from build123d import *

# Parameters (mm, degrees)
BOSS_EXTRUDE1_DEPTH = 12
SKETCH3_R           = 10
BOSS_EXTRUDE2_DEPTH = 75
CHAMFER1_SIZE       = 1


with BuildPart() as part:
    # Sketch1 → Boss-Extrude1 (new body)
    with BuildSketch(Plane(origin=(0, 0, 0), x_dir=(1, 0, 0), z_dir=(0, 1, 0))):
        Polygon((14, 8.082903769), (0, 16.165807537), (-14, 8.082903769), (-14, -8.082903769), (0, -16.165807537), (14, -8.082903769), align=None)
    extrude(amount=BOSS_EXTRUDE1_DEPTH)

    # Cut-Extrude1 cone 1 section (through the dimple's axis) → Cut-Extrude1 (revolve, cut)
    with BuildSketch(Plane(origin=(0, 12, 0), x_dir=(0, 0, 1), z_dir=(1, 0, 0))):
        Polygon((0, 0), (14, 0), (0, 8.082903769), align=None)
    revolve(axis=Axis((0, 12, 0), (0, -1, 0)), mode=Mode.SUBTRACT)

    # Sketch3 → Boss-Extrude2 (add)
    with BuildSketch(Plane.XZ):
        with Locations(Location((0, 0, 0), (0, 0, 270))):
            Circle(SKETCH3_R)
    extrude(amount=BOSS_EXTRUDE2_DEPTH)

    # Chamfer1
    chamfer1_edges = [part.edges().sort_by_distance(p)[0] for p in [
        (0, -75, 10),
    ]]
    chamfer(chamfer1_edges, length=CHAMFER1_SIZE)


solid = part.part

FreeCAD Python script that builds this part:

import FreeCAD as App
import Part
import Sketcher
from FreeCAD import Vector
Q = App.Units.Quantity


def edges_at(feature, points):
    """Names of the edges that pass closest to the given points."""
    edges = feature.Shape.Edges
    near = lambda p: min(range(len(edges)), key=lambda i: edges[i].distToShape(Part.Vertex(*p))[0])
    return sorted({f"Edge{near(p) + 1}" for p in points})

doc = App.newDocument("Part")
body = doc.addObject("PartDesign::Body", "Body")

# Sketch on XZ plane
sketch1 = body.newObject("Sketcher::SketchObject", "Sketch")
sketch1.AttachmentSupport = (doc.getObject("XZ_Plane"), [""])
sketch1.MapMode = "FlatFace"
sketch1.addGeometry([
    Part.LineSegment(Vector(14, -8.082904, 0), Vector(0, -16.165808, 0)),  # 0
    Part.LineSegment(Vector(0, -16.165808, 0), Vector(-14, -8.082904, 0)),  # 1
    Part.LineSegment(Vector(-14, -8.082904, 0), Vector(-14, 8.082904, 0)),  # 2
    Part.LineSegment(Vector(-14, 8.082904, 0), Vector(0, 16.165808, 0)),  # 3
    Part.LineSegment(Vector(0, 16.165808, 0), Vector(14, 8.082904, 0)),  # 4
    Part.LineSegment(Vector(14, 8.082904, 0), Vector(14, -8.082904, 0)),  # 5
], False)
sketch1.addConstraint([
    Sketcher.Constraint("Coincident", 0, 2, 1, 1),
    Sketcher.Constraint("Coincident", 1, 2, 2, 1),
    Sketcher.Constraint("Coincident", 2, 2, 3, 1),
    Sketcher.Constraint("Coincident", 3, 2, 4, 1),
    Sketcher.Constraint("Coincident", 4, 2, 5, 1),
    Sketcher.Constraint("Coincident", 5, 2, 0, 1),
    Sketcher.Constraint("Vertical", 2),
    Sketcher.Constraint("Vertical", 5),
    Sketcher.Constraint("Symmetric", 0, 2, 3, 2, -1, 1),
    Sketcher.Constraint("Symmetric", 1, 2, 4, 2, -1, 1),
    Sketcher.Constraint("PointOnObject", 0, 2, -2),
    Sketcher.Constraint("Parallel", 0, 3),
    Sketcher.Constraint("Horizontal", 2, 2, 4, 2),
    Sketcher.Constraint("Angle", 0, Q("-150 deg")),
    Sketcher.Constraint("DistanceX", 1, 2, -1, 1, 14.0),
    Sketcher.Constraint("DistanceY", 2, 1, 2, 2, 16.165808),
])
pad1 = body.newObject("PartDesign::Pad", "Pad")
pad1.Profile = sketch1
pad1.Length = 12
pad1.Reversed = True

# Sketch on YZ plane
sketch2 = body.newObject("Sketcher::SketchObject", "Sketch001")
sketch2.AttachmentSupport = (doc.getObject("YZ_Plane"), [""])
sketch2.MapMode = "FlatFace"
sketch2.addGeometry([
    Part.LineSegment(Vector(12, 0, 0), Vector(12, 14, 0)),
    Part.LineSegment(Vector(12, 14, 0), Vector(3.917096, 0, 0)),
    Part.LineSegment(Vector(3.917096, 0, 0), Vector(12, 0, 0)),
], False)
sketch2.addConstraint([
    Sketcher.Constraint("Coincident", 0, 2, 1, 1),
    Sketcher.Constraint("Coincident", 1, 2, 2, 1),
    Sketcher.Constraint("Coincident", 2, 2, 0, 1),
    Sketcher.Constraint("Vertical", 0),
    Sketcher.Constraint("Horizontal", 2),
    Sketcher.Constraint("PointOnObject", 1, 2, -1),
    Sketcher.Constraint("DistanceY", 0, 1, 0, 2, 14.0),
    Sketcher.Constraint("Angle", 1, Q("-120 deg")),
    Sketcher.Constraint("DistanceX", -1, 1, 0, 2, 12.0),
])
groove = body.newObject("PartDesign::Groove", "Groove")
groove.Profile = sketch2
groove.ReferenceAxis = (sketch2, ["H_Axis"])
groove.Angle = 360

# Sketch on XZ plane
sketch3 = body.newObject("Sketcher::SketchObject", "Sketch002")
sketch3.AttachmentSupport = (doc.getObject("XZ_Plane"), [""])
sketch3.MapMode = "FlatFace"
sketch3.addGeometry(Part.Circle(Vector(0, 0, 0), Vector(0, 0, 1), 10), False)
sketch3.addConstraint([
    Sketcher.Constraint("Coincident", 0, 3, -1, 1),
    Sketcher.Constraint("Diameter", 0, 20.0),
])
pad2 = body.newObject("PartDesign::Pad", "Pad001")
pad2.Profile = sketch3
pad2.Length = 75
doc.recompute()

chamfer = body.newObject("PartDesign::Chamfer", "Chamfer")
chamfer.Base = (pad2, edges_at(pad2, [(0, -75, 10)]))
chamfer.Size = 1

doc.recompute()
